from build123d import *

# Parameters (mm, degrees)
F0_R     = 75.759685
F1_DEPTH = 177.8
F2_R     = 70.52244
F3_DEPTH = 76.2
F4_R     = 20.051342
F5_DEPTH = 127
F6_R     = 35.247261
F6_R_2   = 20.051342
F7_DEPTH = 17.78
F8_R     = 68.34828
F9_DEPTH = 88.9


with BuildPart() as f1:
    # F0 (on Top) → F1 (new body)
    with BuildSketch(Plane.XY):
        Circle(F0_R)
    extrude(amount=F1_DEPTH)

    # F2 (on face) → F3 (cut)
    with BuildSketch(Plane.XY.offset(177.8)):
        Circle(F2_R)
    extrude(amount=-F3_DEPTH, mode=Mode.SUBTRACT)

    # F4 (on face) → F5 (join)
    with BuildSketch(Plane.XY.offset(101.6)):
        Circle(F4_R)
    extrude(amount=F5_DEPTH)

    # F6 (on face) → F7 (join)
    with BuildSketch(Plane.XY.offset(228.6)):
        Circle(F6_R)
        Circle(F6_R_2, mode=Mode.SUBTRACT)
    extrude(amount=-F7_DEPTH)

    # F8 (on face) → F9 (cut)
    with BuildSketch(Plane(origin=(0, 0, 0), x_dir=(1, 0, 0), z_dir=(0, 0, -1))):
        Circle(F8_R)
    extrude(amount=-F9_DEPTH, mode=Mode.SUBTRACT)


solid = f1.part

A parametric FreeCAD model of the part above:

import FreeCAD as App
import Part
import Sketcher

V = App.Vector
Q = App.Units.Quantity

doc = App.newDocument("Part")
body = doc.addObject("PartDesign::Body", "Body")

# Sketch on XY plane
sketch1 = body.newObject("Sketcher::SketchObject", "Sketch")
sketch1.AttachmentSupport = (doc.getObject("XY_Plane"), [""])
sketch1.MapMode = "FlatFace"
sketch1.addGeometry(Part.Circle(V(0, 0, 0), V(0, 0, 1), 76), False)
sketch1.addConstraint(Sketcher.Constraint("Coincident", 0, 3, -1, 1))
sketch1.addConstraint(Sketcher.Constraint("Diameter", 0, 151.51937))
pad1 = body.newObject("PartDesign::Pad", "Pad")
pad1.Profile = sketch1
pad1.Length = Q("7 in")

# Sketch on XY plane
sketch2 = body.newObject("Sketcher::SketchObject", "Sketch001")
sketch2.AttachmentSupport = (doc.getObject("XY_Plane"), [""])
sketch2.MapMode = "FlatFace"
sketch2.AttachmentOffset = App.Placement(V(0, 0, 7 * 25.4), App.Rotation())
sketch2.addGeometry(Part.Circle(V(0, 0, 0), V(0, 0, 1), 71), False)
sketch2.addConstraint(Sketcher.Constraint("Coincident", 0, 3, -1, 1))
sketch2.addConstraint(Sketcher.Constraint("Diameter", 0, 141.04488))
pocket1 = body.newObject("PartDesign::Pocket", "Pocket")
pocket1.Profile = sketch2
pocket1.Length = Q("3 in")

# Sketch on XY plane
sketch3 = body.newObject("Sketcher::SketchObject", "Sketch002")
sketch3.AttachmentSupport = (doc.getObject("XY_Plane"), [""])
sketch3.MapMode = "FlatFace"
sketch3.AttachmentOffset = App.Placement(V(0, 0, 4 * 25.4), App.Rotation())
sketch3.addGeometry(Part.Circle(V(0, 0, 0), V(0, 0, 1), 20), False)
sketch3.addConstraint(Sketcher.Constraint("Coincident", 0, 3, -1, 1))
sketch3.addConstraint(Sketcher.Constraint("Diameter", 0, 40.102684))
pad2 = body.newObject("PartDesign::Pad", "Pad001")
pad2.Profile = sketch3
pad2.Length = Q("5 in")

# Sketch on XY plane
sketch4 = body.newObject("Sketcher::SketchObject", "Sketch003")
sketch4.AttachmentSupport = (doc.getObject("XY_Plane"), [""])
sketch4.MapMode = "FlatFace"
sketch4.AttachmentOffset = App.Placement(V(0, 0, 9 * 25.4), App.Rotation())
sketch4.addGeometry(Part.Circle(V(0, 0, 0), V(0, 0, 1), 35), False)
sketch4.addGeometry(Part.Circle(V(0, 0, 0), V(0, 0, 1), 20), False)
sketch4.addConstraint(Sketcher.Constraint("Coincident", 0, 3, -1, 1))
sketch4.addConstraint(Sketcher.Constraint("Coincident", 1, 3, -1, 1))
sketch4.addConstraint(Sketcher.Constraint("Diameter", 0, 70.494522))
sketch4.addConstraint(Sketcher.Constraint("Diameter", 1, 40.102684))
pad3 = body.newObject("PartDesign::Pad", "Pad002")
pad3.Profile = sketch4
pad3.Length = Q("0.7 in")
pad3.Reversed = True

# Sketch on XY plane
sketch5 = body.newObject("Sketcher::SketchObject", "Sketch004")
sketch5.AttachmentSupport = (doc.getObject("XY_Plane"), [""])
sketch5.MapMode = "FlatFace"
sketch5.addGeometry(Part.Circle(V(0, 0, 0), V(0, 0, 1), 68), False)
sketch5.addConstraint(Sketcher.Constraint("Coincident", 0, 3, -1, 1))
sketch5.addConstraint(Sketcher.Constraint("Diameter", 0, 136.69656))
pocket2 = body.newObject("PartDesign::Pocket", "Pocket001")
pocket2.Profile = sketch5
pocket2.Length = Q("3.5 in")
pocket2.Reversed = True

doc.recompute()
